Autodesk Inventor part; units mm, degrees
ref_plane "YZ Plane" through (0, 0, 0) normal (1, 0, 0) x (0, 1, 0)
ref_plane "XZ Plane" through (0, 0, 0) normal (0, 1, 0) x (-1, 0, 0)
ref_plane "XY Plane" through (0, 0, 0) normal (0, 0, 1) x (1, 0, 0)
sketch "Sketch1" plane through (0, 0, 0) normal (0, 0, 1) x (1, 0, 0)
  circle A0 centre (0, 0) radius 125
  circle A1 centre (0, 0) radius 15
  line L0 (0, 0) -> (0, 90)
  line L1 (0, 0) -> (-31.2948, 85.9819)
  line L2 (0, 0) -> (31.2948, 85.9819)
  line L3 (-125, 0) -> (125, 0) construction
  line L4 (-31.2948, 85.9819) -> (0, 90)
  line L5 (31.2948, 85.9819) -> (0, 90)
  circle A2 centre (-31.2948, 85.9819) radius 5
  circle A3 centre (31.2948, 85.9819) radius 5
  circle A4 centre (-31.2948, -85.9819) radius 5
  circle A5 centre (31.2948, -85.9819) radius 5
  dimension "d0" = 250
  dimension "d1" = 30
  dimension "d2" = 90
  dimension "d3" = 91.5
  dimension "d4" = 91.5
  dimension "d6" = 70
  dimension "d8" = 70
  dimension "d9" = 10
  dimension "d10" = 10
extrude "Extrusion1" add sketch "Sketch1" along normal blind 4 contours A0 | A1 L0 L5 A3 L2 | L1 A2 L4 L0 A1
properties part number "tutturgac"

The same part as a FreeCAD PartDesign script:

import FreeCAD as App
import Part
import Sketcher

doc = App.newDocument("Part")
body = doc.addObject("PartDesign::Body", "Body")

sketch1 = doc.addObject("Sketcher::SketchObject", "Sketch")
body.addObject(sketch1)
sketch1.AttachmentSupport = (doc.XY_Plane, [""])
sketch1.MapMode = "FlatFace"
sketch1.addGeometry(Part.Circle(App.Vector(0, 0, 0), App.Vector(0, 0, 1), 125), False)
sketch1.addGeometry(Part.Circle(App.Vector(-31.2948, -85.9819, 0), App.Vector(0, 0, 1), 5), False)
sketch1.addGeometry(Part.Circle(App.Vector(31.2948, -85.9819, 0), App.Vector(0, 0, 1), 5), False)
sketch1.addGeometry(Part.Circle(App.Vector(0, 0, 0), App.Vector(0, 0, 1), 15), False)
sketch1.addGeometry(Part.Circle(App.Vector(31.2948, 85.9819, 0), App.Vector(0, 0, 1), 5), False)
sketch1.addGeometry(Part.Circle(App.Vector(-31.2948, 85.9819, 0), App.Vector(0, 0, 1), 5), False)
sketch1.addConstraint(Sketcher.Constraint("Coincident", 0, 3, -1, 1))
sketch1.addConstraint(Sketcher.Constraint("Coincident", 3, 3, -1, 1))
sketch1.addConstraint(Sketcher.Constraint("Equal", 1, 2))
sketch1.addConstraint(Sketcher.Constraint("Equal", 2, 4))
sketch1.addConstraint(Sketcher.Constraint("Equal", 4, 5))
sketch1.addConstraint(Sketcher.Constraint("Symmetric", 1, 3, 4, 3, -1, 1))
sketch1.addConstraint(Sketcher.Constraint("Symmetric", 2, 3, 5, 3, -1, 1))
sketch1.addConstraint(Sketcher.Constraint("Symmetric", 1, 3, 2, 3, -2))
sketch1.addConstraint(Sketcher.Constraint("Diameter", 0, 250.0))
sketch1.addConstraint(Sketcher.Constraint("Diameter", 1, 10.0))
sketch1.addConstraint(Sketcher.Constraint("Diameter", 3, 30.0))
sketch1.addConstraint(Sketcher.Constraint("DistanceY", 1, 3, -1, 1, 85.982))
sketch1.addConstraint(Sketcher.Constraint("DistanceX", 1, 3, -1, 1, 31.2948))
pad1 = doc.addObject("PartDesign::Pad", "Pad")
body.addObject(pad1)
pad1.Profile = sketch1
pad1.Length = 4

doc.recompute()
